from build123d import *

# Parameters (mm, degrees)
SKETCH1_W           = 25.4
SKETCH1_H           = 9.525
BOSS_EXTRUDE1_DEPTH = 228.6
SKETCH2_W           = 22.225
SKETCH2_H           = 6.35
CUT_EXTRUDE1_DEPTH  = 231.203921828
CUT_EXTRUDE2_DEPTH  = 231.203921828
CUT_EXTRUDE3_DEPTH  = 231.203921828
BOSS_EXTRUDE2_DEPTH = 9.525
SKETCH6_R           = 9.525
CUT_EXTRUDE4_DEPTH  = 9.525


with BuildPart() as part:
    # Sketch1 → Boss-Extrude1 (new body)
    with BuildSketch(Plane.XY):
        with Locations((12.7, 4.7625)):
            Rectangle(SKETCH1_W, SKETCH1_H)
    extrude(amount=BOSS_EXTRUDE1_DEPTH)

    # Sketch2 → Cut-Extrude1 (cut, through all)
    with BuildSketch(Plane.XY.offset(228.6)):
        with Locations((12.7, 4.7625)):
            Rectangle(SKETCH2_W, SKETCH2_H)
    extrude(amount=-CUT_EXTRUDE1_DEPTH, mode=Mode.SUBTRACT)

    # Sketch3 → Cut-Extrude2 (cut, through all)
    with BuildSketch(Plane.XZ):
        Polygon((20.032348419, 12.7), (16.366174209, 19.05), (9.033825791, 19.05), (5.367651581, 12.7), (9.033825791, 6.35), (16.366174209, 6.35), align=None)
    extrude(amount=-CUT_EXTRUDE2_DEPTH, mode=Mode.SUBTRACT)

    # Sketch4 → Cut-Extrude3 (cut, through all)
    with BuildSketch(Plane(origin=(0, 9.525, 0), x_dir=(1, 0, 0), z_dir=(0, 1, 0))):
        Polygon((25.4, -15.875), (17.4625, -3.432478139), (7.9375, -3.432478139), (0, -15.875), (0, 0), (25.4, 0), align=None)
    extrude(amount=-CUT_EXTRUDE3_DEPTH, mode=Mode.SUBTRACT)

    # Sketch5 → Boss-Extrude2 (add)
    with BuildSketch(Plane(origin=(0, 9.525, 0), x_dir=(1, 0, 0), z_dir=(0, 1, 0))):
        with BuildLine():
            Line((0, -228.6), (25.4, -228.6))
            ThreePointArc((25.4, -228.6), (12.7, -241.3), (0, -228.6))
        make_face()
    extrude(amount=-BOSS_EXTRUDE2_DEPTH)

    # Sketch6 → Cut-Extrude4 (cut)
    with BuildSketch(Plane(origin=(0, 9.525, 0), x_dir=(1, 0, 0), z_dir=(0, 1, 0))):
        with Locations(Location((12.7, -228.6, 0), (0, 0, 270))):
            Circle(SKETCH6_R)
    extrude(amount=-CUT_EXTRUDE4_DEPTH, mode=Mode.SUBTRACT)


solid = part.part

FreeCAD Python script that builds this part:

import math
import FreeCAD as App
import Part
import Sketcher

V = App.Vector
Q = App.Units.Quantity

doc = App.newDocument("Part")
body = doc.addObject("PartDesign::Body", "Body")

sketch1 = body.newObject("Sketcher::SketchObject", "Sketch")
sketch1.AttachmentSupport = (doc.getObject("XY_Plane"), [""])
sketch1.MapMode = "FlatFace"
sketch1.addGeometry(Part.LineSegment(V(0, 10, 0), V(0, 0, 0)), False)
sketch1.addGeometry(Part.LineSegment(V(0, 0, 0), V(25, 0, 0)), False)
sketch1.addGeometry(Part.LineSegment(V(25, 0, 0), V(25, 10, 0)), False)
sketch1.addGeometry(Part.LineSegment(V(25, 10, 0), V(0, 10, 0)), False)
sketch1.addConstraint(Sketcher.Constraint("Coincident", 0, 2, 1, 1))
sketch1.addConstraint(Sketcher.Constraint("Coincident", 1, 2, 2, 1))
sketch1.addConstraint(Sketcher.Constraint("Coincident", 2, 2, 3, 1))
sketch1.addConstraint(Sketcher.Constraint("Coincident", 3, 2, 0, 1))
sketch1.addConstraint(Sketcher.Constraint("Vertical", 0))
sketch1.addConstraint(Sketcher.Constraint("Horizontal", 1))
sketch1.addConstraint(Sketcher.Constraint("Vertical", 2))
sketch1.addConstraint(Sketcher.Constraint("Horizontal", 3))
sketch1.addConstraint(Sketcher.Constraint("Coincident", 0, 2, -1, 1))
sketch1.addConstraint(Sketcher.Constraint("DistanceX", 1, 1, 1, 2, Q("1 in")))
sketch1.addConstraint(Sketcher.Constraint("DistanceY", 0, 2, 0, 1, Q("0.375 in")))
pad1 = body.newObject("PartDesign::Pad", "Pad")
pad1.Profile = sketch1
pad1.Length = Q("9 in")

sketch2 = body.newObject("Sketcher::SketchObject", "Sketch001")
sketch2.AttachmentSupport = (doc.getObject("XY_Plane"), [""])
sketch2.MapMode = "FlatFace"
sketch2.AttachmentOffset = App.Placement(V(0, 0, 9 * 25.4), App.Rotation())
sketch2.addGeometry(Part.LineSegment(V(2, 8, 0), V(2, 2, 0)), False)
sketch2.addGeometry(Part.LineSegment(V(2, 2, 0), V(24, 2, 0)), False)
sketch2.addGeometry(Part.LineSegment(V(24, 2, 0), V(24, 8, 0)), False)
sketch2.addGeometry(Part.LineSegment(V(24, 8, 0), V(2, 8, 0)), False)
sketch2.addConstraint(Sketcher.Constraint("Coincident", 0, 2, 1, 1))
sketch2.addConstraint(Sketcher.Constraint("Coincident", 1, 2, 2, 1))
sketch2.addConstraint(Sketcher.Constraint("Coincident", 2, 2, 3, 1))
sketch2.addConstraint(Sketcher.Constraint("Coincident", 3, 2, 0, 1))
sketch2.addConstraint(Sketcher.Constraint("Vertical", 0))
sketch2.addConstraint(Sketcher.Constraint("Horizontal", 1))
sketch2.addConstraint(Sketcher.Constraint("Vertical", 2))
sketch2.addConstraint(Sketcher.Constraint("Horizontal", 3))
sketch2.addConstraint(Sketcher.Constraint("DistanceY", 0, 2, 0, 1, Q("0.25 in")))
sketch2.addConstraint(Sketcher.Constraint("DistanceX", 1, 1, 1, 2, Q("0.875 in")))
sketch2.addConstraint(Sketcher.Constraint("DistanceX", -1, 1, 0, 2, Q("0.0625 in")))
sketch2.addConstraint(Sketcher.Constraint("DistanceY", -1, 1, 0, 2, Q("0.0625 in")))
pocket1 = body.newObject("PartDesign::Pocket", "Pocket")
pocket1.Profile = sketch2
pocket1.Type = "ThroughAll"

sketch3 = body.newObject("Sketcher::SketchObject", "Sketch002")
sketch3.AttachmentSupport = (doc.getObject("XZ_Plane"), [""])
sketch3.MapMode = "FlatFace"
sketch3.addGeometry(Part.LineSegment(V(20, 13, 0), V(16, 19, 0)), False)
sketch3.addGeometry(Part.LineSegment(V(16, 19, 0), V(9, 19, 0)), False)
sketch3.addGeometry(Part.LineSegment(V(9, 19, 0), V(5, 13, 0)), False)
sketch3.addGeometry(Part.LineSegment(V(5, 13, 0), V(9, 6, 0)), False)
sketch3.addGeometry(Part.LineSegment(V(9, 6, 0), V(16, 6, 0)), False)
sketch3.addGeometry(Part.LineSegment(V(16, 6, 0), V(20, 13, 0)), False)
sketch3.addConstraint(Sketcher.Constraint("Coincident", 0, 2, 1, 1))
sketch3.addConstraint(Sketcher.Constraint("Coincident", 1, 2, 2, 1))
sketch3.addConstraint(Sketcher.Constraint("Coincident", 2, 2, 3, 1))
sketch3.addConstraint(Sketcher.Constraint("Coincident", 3, 2, 4, 1))
sketch3.addConstraint(Sketcher.Constraint("Coincident", 4, 2, 5, 1))
sketch3.addConstraint(Sketcher.Constraint("Coincident", 5, 2, 0, 1))
sketch3.addConstraint(Sketcher.Constraint("Horizontal", 1))
sketch3.addConstraint(Sketcher.Constraint("Horizontal", 4))
sketch3.addConstraint(Sketcher.Constraint("Parallel", 0, 3))
sketch3.addConstraint(Sketcher.Constraint("Parallel", 2, 5))
sketch3.addConstraint(Sketcher.Constraint("Horizontal", 2, 2, 5, 2))
sketch3.addConstraint(Sketcher.Constraint("Vertical", 1, 2, 3, 2))
sketch3.addConstraint(Sketcher.Constraint("Vertical", 0, 2, 4, 2))
sketch3.addConstraint(Sketcher.Constraint("Angle", 0, Q("120 deg")))
sketch3.addConstraint(Sketcher.Constraint("DistanceY", -1, 1, 2, 2, Q("0.5 in")))
sketch3.addConstraint(Sketcher.Constraint("DistanceY", 3, 2, 1, 2, Q("0.5 in")))
sketch3.addConstraint(Sketcher.Constraint("DistanceX", 1, 2, 1, 1, 7.332348))
sketch3.addConstraint(Sketcher.Constraint("DistanceX", -1, 1, 2, 2, 5.367652))
pocket2 = body.newObject("PartDesign::Pocket", "Pocket001")
pocket2.Profile = sketch3
pocket2.Type = "ThroughAll"

sketch4 = body.newObject("Sketcher::SketchObject", "Sketch003")
sketch4.AttachmentSupport = (doc.getObject("XZ_Plane"), [""])
sketch4.MapMode = "FlatFace"
sketch4.AttachmentOffset = App.Placement(V(0, 0, -0.375 * 25.4), App.Rotation())
sketch4.addGeometry(Part.LineSegment(V(17, 3, 0), V(25, 16, 0)), False)
sketch4.addGeometry(Part.LineSegment(V(25, 16, 0), V(25, 0, 0)), False)
sketch4.addGeometry(Part.LineSegment(V(25, 0, 0), V(0, 0, 0)), False)
sketch4.addGeometry(Part.LineSegment(V(0, 0, 0), V(0, 16, 0)), False)
sketch4.addGeometry(Part.LineSegment(V(0, 16, 0), V(8, 3, 0)), False)
sketch4.addGeometry(Part.LineSegment(V(8, 3, 0), V(17, 3, 0)), False)
sketch4.addConstraint(Sketcher.Constraint("Coincident", 0, 2, 1, 1))
sketch4.addConstraint(Sketcher.Constraint("Coincident", 1, 2, 2, 1))
sketch4.addConstraint(Sketcher.Constraint("Coincident", 2, 2, 3, 1))
sketch4.addConstraint(Sketcher.Constraint("Coincident", 3, 2, 4, 1))
sketch4.addConstraint(Sketcher.Constraint("Coincident", 4, 2, 5, 1))
sketch4.addConstraint(Sketcher.Constraint("Coincident", 5, 2, 0, 1))
sketch4.addConstraint(Sketcher.Constraint("Vertical", 1))
sketch4.addConstraint(Sketcher.Constraint("Horizontal", 2))
sketch4.addConstraint(Sketcher.Constraint("Vertical", 3))
sketch4.addConstraint(Sketcher.Constraint("Horizontal", 5))
sketch4.addConstraint(Sketcher.Constraint("Coincident", 2, 2, -1, 1))
sketch4.addConstraint(Sketcher.Constraint("Horizontal", 0, 2, 3, 2))
sketch4.addConstraint(Sketcher.Constraint("Equal", 0, 4))
sketch4.addConstraint(Sketcher.Constraint("DistanceX", 2, 2, 2, 1, Q("1 in")))
sketch4.addConstraint(Sketcher.Constraint("DistanceX", 5, 1, 5, 2, Q("0.375 in")))
sketch4.addConstraint(Sketcher.Constraint("DistanceY", 1, 2, 1, 1, Q("0.625 in")))
sketch4.addConstraint(Sketcher.Constraint("DistanceY", -1, 1, 4, 2, 3.432478))
pocket3 = body.newObject("PartDesign::Pocket", "Pocket002")
pocket3.Profile = sketch4
pocket3.Type = "ThroughAll"
pocket3.Reversed = True

sketch5 = body.newObject("Sketcher::SketchObject", "Sketch004")
sketch5.AttachmentSupport = (doc.getObject("XZ_Plane"), [""])
sketch5.MapMode = "FlatFace"
sketch5.AttachmentOffset = App.Placement(V(0, 0, -0.375 * 25.4), App.Rotation())
sketch5.addGeometry(Part.LineSegment(V(25, 229, 0), V(0, 229, 0)), False)
sketch5.addGeometry(Part.ArcOfCircle(Part.Circle(V(13, 229, 0), V(0, 0, 1), 13), math.radians(0), math.radians(180)), False)
sketch5.addConstraint(Sketcher.Constraint("Coincident", 0, 1, 1, 1))
sketch5.addConstraint(Sketcher.Constraint("Coincident", 1, 2, 0, 2))
sketch5.addConstraint(Sketcher.Constraint("Horizontal", 0))
sketch5.addConstraint(Sketcher.Constraint("PointOnObject", 1, 2, -2))
sketch5.addConstraint(Sketcher.Constraint("Horizontal", 1, 3, 0, 1))
sketch5.addConstraint(Sketcher.Constraint("Radius", 1, Q("0.5 in")))
sketch5.addConstraint(Sketcher.Constraint("DistanceY", -1, 1, 1, 3, Q("9 in")))
pad2 = body.newObject("PartDesign::Pad", "Pad001")
pad2.Profile = sketch5
pad2.Length = Q("0.375 in")

sketch6 = body.newObject("Sketcher::SketchObject", "Sketch005")
sketch6.AttachmentSupport = (doc.getObject("XZ_Plane"), [""])
sketch6.MapMode = "FlatFace"
sketch6.AttachmentOffset = App.Placement(V(0, 0, -0.375 * 25.4), App.Rotation())
sketch6.addGeometry(Part.Circle(V(13, 229, 0), V(0, 0, 1), 10), False)
sketch6.addConstraint(Sketcher.Constraint("Diameter", 0, Q("0.75 in")))
sketch6.addConstraint(Sketcher.Constraint("DistanceY", -1, 1, 0, 3, Q("9 in")))
sketch6.addConstraint(Sketcher.Constraint("DistanceX", -1, 1, 0, 3, Q("0.5 in")))
pocket4 = body.newObject("PartDesign::Pocket", "Pocket003")
pocket4.Profile = sketch6
pocket4.Length = Q("0.375 in")
pocket4.Reversed = True

doc.recompute()
